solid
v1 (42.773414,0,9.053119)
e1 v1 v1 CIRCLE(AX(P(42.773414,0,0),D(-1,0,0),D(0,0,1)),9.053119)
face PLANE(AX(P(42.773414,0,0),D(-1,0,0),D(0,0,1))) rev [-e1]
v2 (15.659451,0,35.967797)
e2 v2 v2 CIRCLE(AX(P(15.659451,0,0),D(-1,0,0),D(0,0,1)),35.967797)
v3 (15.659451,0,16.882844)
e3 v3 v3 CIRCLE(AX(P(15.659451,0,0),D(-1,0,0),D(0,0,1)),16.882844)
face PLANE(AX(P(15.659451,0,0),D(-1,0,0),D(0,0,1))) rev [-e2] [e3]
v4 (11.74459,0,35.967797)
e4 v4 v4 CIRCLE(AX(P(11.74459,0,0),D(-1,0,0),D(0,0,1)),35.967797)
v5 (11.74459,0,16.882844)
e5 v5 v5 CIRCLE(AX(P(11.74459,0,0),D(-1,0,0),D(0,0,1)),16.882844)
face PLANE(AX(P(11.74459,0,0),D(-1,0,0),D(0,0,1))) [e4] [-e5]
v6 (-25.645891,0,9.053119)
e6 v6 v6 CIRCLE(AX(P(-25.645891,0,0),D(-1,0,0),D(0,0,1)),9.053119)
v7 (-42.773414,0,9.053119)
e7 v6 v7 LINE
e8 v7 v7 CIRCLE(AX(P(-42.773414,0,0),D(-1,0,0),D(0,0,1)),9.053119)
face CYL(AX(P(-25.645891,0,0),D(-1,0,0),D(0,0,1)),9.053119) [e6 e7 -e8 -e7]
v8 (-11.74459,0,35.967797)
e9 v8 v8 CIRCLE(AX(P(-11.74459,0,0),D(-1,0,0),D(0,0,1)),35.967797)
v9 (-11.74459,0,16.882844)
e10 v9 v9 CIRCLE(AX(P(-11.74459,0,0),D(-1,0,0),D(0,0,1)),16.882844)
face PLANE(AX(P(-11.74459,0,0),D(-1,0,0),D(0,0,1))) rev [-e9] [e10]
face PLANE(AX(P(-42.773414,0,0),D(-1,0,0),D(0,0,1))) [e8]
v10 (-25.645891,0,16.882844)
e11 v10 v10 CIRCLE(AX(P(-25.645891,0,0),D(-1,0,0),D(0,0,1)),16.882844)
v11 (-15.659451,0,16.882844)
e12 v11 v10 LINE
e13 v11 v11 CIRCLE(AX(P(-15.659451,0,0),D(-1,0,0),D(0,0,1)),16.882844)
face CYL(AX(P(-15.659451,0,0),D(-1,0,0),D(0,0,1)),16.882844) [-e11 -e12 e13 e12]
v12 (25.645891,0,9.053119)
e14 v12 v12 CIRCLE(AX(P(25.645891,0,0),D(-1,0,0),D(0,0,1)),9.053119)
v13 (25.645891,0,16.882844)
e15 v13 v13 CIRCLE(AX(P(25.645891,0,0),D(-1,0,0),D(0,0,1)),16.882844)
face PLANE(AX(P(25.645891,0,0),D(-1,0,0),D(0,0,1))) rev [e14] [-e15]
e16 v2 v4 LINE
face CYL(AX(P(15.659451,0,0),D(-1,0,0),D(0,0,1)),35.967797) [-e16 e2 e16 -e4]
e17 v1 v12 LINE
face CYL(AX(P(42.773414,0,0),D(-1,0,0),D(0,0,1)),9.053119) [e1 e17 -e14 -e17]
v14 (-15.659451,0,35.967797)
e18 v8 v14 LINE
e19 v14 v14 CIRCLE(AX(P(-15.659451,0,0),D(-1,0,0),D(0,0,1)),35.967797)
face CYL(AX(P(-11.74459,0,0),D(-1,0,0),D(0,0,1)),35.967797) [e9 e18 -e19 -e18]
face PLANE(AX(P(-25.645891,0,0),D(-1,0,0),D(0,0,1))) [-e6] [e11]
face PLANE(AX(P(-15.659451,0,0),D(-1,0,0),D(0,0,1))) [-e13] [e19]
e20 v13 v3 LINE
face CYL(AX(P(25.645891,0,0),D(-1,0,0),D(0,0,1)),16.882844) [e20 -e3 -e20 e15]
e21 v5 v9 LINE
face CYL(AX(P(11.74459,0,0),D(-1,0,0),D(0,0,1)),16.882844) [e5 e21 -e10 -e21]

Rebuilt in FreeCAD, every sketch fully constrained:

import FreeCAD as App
import Part
import Sketcher
Q = App.Units.Quantity


def add_polygon(sketch, points):
    """Adds a closed chain of lines whose ends are joined by coincident constraints."""
    first, n = sketch.GeometryCount, len(points)
    for a, b in zip(points, points[1:] + points[:1]):
        sketch.addGeometry(Part.LineSegment(App.Vector(*a, 0), App.Vector(*b, 0)), False)
    for i in range(n):
        sketch.addConstraint(Sketcher.Constraint("Coincident", first + i, 2, first + (i + 1) % n, 1))

doc = App.newDocument("Part")
body = doc.addObject("PartDesign::Body", "Body")

sketch1 = doc.addObject("Sketcher::SketchObject", "Sketch")
body.addObject(sketch1)
sketch1.AttachmentSupport = (doc.XZ_Plane, [""])
sketch1.MapMode = "FlatFace"
add_polygon(sketch1, [(-42.8, 9.1), (-42.8, 0), (42.8, 0), (42.8, 9.1), (25.6, 9.1), (25.6, 16.9), (15.7, 16.9), (15.7, 36), (11.7, 36), (11.7, 16.9), (-11.7, 16.9), (-11.7, 36), (-15.7, 36), (-15.7, 16.9), (-25.6, 16.9), (-25.6, 9.1)])
sketch1.addConstraint(Sketcher.Constraint("Vertical", 0))
sketch1.addConstraint(Sketcher.Constraint("Horizontal", 1))
sketch1.addConstraint(Sketcher.Constraint("Vertical", 2))
sketch1.addConstraint(Sketcher.Constraint("Horizontal", 3))
sketch1.addConstraint(Sketcher.Constraint("Vertical", 4))
sketch1.addConstraint(Sketcher.Constraint("Horizontal", 5))
sketch1.addConstraint(Sketcher.Constraint("Vertical", 6))
sketch1.addConstraint(Sketcher.Constraint("Horizontal", 7))
sketch1.addConstraint(Sketcher.Constraint("Vertical", 8))
sketch1.addConstraint(Sketcher.Constraint("Horizontal", 9))
sketch1.addConstraint(Sketcher.Constraint("Vertical", 10))
sketch1.addConstraint(Sketcher.Constraint("Horizontal", 11))
sketch1.addConstraint(Sketcher.Constraint("Vertical", 12))
sketch1.addConstraint(Sketcher.Constraint("Horizontal", 13))
sketch1.addConstraint(Sketcher.Constraint("Vertical", 14))
sketch1.addConstraint(Sketcher.Constraint("Horizontal", 15))
sketch1.addConstraint(Sketcher.Constraint("Symmetric", 0, 2, 1, 2, -1, 1))
sketch1.addConstraint(Sketcher.Constraint("Symmetric", 7, 2, 10, 2, -2))
sketch1.addConstraint(Sketcher.Constraint("Symmetric", 5, 2, 12, 2, -2))
sketch1.addConstraint(Sketcher.Constraint("Symmetric", 3, 2, 14, 2, -2))
sketch1.addConstraint(Sketcher.Constraint("Horizontal", 5, 2, 8, 2))
sketch1.addConstraint(Sketcher.Constraint("DistanceX", 1, 1, 1, 2, Q("85.546828 mm")))
sketch1.addConstraint(Sketcher.Constraint("DistanceX", 5, 2, 5, 1, Q("9.98644 mm")))
sketch1.addConstraint(Sketcher.Constraint("DistanceX", 7, 2, 7, 1, Q("3.914861 mm")))
sketch1.addConstraint(Sketcher.Constraint("DistanceX", 9, 2, 9, 1, Q("23.48918 mm")))
sketch1.addConstraint(Sketcher.Constraint("DistanceY", 0, 2, 0, 1, Q("9.053119 mm")))
sketch1.addConstraint(Sketcher.Constraint("DistanceY", 4, 1, 4, 2, Q("7.829725 mm")))
sketch1.addConstraint(Sketcher.Constraint("DistanceY", 6, 1, 6, 2, Q("19.084953 mm")))
revolution = doc.addObject("PartDesign::Revolution", "Revolution")
body.addObject(revolution)
revolution.Profile = sketch1
revolution.ReferenceAxis = (sketch1, ["H_Axis"])
revolution.Angle = 360

doc.recompute()
